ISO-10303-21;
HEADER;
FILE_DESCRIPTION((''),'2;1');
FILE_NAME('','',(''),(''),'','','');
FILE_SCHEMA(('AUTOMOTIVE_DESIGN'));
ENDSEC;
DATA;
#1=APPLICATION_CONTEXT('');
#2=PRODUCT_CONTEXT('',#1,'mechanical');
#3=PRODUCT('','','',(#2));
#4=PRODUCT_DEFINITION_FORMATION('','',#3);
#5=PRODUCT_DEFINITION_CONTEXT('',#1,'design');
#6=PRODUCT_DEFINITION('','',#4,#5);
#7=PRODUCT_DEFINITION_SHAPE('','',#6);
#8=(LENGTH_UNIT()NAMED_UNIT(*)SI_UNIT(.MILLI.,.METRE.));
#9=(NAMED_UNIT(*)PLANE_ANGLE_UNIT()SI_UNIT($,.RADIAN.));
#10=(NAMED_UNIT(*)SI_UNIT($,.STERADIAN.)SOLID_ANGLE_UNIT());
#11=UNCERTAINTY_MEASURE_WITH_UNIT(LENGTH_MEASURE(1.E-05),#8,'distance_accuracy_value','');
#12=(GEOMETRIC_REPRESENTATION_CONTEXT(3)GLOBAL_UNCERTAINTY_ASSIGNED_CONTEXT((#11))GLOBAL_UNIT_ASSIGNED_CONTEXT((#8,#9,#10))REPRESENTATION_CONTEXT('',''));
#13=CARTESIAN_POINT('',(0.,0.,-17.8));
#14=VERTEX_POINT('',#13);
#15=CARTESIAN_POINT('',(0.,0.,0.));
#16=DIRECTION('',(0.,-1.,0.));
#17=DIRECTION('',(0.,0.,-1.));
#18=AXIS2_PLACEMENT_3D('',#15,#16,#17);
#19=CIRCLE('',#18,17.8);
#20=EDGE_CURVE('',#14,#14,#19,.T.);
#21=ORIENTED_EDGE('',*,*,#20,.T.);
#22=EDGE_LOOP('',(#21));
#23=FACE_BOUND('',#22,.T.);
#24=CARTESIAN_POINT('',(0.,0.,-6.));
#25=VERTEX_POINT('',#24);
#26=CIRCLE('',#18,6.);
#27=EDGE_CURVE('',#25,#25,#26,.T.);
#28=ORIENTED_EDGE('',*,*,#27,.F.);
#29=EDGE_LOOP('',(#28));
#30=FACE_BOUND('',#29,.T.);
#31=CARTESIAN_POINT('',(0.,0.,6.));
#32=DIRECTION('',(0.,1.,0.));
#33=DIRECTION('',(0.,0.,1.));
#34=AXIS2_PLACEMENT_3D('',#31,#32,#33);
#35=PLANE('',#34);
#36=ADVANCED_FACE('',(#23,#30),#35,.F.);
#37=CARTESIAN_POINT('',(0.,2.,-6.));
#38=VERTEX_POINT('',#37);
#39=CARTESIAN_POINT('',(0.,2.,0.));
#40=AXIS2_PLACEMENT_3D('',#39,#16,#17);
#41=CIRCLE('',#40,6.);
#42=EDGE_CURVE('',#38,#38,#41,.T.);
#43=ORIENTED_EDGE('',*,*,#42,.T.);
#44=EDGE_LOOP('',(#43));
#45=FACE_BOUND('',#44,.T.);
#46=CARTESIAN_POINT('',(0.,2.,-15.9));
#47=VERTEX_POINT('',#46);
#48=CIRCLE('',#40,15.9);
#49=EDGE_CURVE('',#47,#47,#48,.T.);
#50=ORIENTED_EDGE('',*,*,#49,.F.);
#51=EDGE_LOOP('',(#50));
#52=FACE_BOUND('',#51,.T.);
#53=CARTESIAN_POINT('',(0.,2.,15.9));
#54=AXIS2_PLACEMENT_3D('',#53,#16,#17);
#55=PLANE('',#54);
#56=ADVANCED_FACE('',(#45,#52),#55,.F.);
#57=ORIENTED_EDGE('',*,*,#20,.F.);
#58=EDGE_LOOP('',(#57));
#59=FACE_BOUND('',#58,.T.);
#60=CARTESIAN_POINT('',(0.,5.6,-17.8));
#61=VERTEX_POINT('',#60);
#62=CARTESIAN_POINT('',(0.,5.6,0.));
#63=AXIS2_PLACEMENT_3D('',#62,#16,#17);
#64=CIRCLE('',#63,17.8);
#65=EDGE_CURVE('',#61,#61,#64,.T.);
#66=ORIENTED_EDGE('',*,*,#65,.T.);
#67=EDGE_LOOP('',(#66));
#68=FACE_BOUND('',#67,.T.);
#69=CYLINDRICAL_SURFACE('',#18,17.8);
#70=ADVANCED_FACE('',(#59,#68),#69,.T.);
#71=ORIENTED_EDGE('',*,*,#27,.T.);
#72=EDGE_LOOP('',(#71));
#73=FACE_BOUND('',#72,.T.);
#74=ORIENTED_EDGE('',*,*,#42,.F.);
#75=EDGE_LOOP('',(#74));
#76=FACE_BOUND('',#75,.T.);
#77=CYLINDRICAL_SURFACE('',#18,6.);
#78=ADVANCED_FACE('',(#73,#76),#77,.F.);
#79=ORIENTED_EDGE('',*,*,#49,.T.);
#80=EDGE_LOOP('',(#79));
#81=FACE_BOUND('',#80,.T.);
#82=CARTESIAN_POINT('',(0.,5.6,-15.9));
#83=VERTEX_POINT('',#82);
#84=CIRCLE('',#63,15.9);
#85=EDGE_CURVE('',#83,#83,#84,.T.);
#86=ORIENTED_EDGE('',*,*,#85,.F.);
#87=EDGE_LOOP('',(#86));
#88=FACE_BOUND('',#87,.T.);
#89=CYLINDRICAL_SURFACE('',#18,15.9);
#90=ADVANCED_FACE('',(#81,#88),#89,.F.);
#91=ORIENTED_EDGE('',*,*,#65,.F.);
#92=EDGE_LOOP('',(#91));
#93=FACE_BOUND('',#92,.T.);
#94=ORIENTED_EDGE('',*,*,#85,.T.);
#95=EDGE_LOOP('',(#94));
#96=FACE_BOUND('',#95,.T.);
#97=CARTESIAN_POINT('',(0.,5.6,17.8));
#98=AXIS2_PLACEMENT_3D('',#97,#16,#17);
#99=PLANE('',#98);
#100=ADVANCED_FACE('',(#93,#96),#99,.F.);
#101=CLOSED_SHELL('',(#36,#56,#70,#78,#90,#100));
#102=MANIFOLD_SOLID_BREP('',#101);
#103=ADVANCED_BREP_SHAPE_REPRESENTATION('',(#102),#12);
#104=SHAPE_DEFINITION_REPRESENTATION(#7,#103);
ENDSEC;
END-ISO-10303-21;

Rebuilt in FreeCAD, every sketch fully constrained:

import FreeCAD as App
import Part
import Sketcher

V = App.Vector
Q = App.Units.Quantity

doc = App.newDocument("Part")
body = doc.addObject("PartDesign::Body", "Body")

sketch1 = body.newObject("Sketcher::SketchObject", "Sketch")
sketch1.AttachmentSupport = (doc.getObject("YZ_Plane"), [""])
sketch1.MapMode = "FlatFace"
sketch1.addGeometry([
    Part.LineSegment(V(0, 17.8, 0), V(0, 6, 0)),
    Part.LineSegment(V(0, 6, 0), V(2, 6, 0)),
    Part.LineSegment(V(2, 6, 0), V(2, 15.9, 0)),
    Part.LineSegment(V(2, 15.9, 0), V(5.6, 15.9, 0)),
    Part.LineSegment(V(5.6, 15.9, 0), V(5.6, 17.8, 0)),
    Part.LineSegment(V(5.6, 17.8, 0), V(0, 17.8, 0)),
], False)
sketch1.addConstraint([
    Sketcher.Constraint("Coincident", 0, 2, 1, 1),
    Sketcher.Constraint("Coincident", 1, 2, 2, 1),
    Sketcher.Constraint("Coincident", 2, 2, 3, 1),
    Sketcher.Constraint("Coincident", 3, 2, 4, 1),
    Sketcher.Constraint("Coincident", 4, 2, 5, 1),
    Sketcher.Constraint("Coincident", 5, 2, 0, 1),
    Sketcher.Constraint("Vertical", 0),
    Sketcher.Constraint("Horizontal", 1),
    Sketcher.Constraint("Vertical", 2),
    Sketcher.Constraint("Horizontal", 3),
    Sketcher.Constraint("Vertical", 4),
    Sketcher.Constraint("Horizontal", 5),
    Sketcher.Constraint("PointOnObject", 0, 2, -2),
    Sketcher.Constraint("DistanceX", 1, 1, 1, 2, Q("2 mm")),
    Sketcher.Constraint("DistanceX", 3, 1, 3, 2, Q("3.6 mm")),
    Sketcher.Constraint("DistanceY", 0, 2, 0, 1, Q("11.8 mm")),
    Sketcher.Constraint("DistanceY", 2, 1, 2, 2, Q("9.9 mm")),
    Sketcher.Constraint("DistanceY", -1, 1, 0, 2, Q("6 mm")),
])
revolution = body.newObject("PartDesign::Revolution", "Revolution")
revolution.Profile = sketch1
revolution.ReferenceAxis = (sketch1, ["H_Axis"])
revolution.Angle = 360

doc.recompute()
